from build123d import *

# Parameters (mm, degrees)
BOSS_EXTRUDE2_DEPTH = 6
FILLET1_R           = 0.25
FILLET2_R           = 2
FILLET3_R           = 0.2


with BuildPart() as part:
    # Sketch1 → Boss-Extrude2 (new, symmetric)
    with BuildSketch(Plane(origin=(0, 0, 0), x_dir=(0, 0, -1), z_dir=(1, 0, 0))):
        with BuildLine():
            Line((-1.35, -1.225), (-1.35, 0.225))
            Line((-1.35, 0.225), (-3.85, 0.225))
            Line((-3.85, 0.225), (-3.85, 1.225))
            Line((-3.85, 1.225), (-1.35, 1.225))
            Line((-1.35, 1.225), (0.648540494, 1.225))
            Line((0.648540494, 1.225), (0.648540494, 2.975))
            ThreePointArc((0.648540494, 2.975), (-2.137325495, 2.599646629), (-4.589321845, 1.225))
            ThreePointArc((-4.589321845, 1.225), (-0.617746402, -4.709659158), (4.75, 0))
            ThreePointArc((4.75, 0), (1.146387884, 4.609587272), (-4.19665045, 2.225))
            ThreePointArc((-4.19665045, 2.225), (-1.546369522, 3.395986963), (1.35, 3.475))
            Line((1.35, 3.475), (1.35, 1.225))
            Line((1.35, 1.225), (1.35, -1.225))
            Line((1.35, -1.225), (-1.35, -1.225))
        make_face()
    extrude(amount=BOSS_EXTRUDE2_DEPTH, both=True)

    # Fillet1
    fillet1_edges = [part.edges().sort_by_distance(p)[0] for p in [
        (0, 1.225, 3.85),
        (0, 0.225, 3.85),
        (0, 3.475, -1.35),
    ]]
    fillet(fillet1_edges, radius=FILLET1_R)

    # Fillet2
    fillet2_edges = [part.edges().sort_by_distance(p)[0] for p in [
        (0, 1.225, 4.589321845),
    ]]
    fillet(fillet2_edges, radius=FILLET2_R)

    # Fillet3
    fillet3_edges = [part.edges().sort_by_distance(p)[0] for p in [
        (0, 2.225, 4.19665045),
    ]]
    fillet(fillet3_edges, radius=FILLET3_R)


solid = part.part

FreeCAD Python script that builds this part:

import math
import FreeCAD as App
import Part
import Sketcher


def edges_at(feature, points):
    """Names of the edges that pass closest to the given points."""
    edges = feature.Shape.Edges
    near = lambda p: min(range(len(edges)), key=lambda i: edges[i].distToShape(Part.Vertex(*p))[0])
    return sorted({f"Edge{near(p) + 1}" for p in points})

doc = App.newDocument("Part")
body = doc.addObject("PartDesign::Body", "Body")

sketch1 = body.newObject("Sketcher::SketchObject", "Sketch")
sketch1.AttachmentSupport = (doc.getObject("YZ_Plane"), [""])
sketch1.MapMode = "FlatFace"
sketch1.addGeometry(Part.LineSegment(App.Vector(-1.2, 1.4, 0), App.Vector(0.2, 1.4, 0)), False)
sketch1.addGeometry(Part.LineSegment(App.Vector(0.2, 1.4, 0), App.Vector(0.2, 3.9, 0)), False)
sketch1.addGeometry(Part.LineSegment(App.Vector(0.2, 3.9, 0), App.Vector(1.2, 3.9, 0)), False)
sketch1.addGeometry(Part.LineSegment(App.Vector(1.2, 3.9, 0), App.Vector(1.2, -0.6, 0)), False)
sketch1.addGeometry(Part.LineSegment(App.Vector(1.2, -0.6, 0), App.Vector(3, -0.6, 0)), False)
sketch1.addGeometry(Part.ArcOfCircle(Part.Circle(App.Vector(-4.5, -0.2, 0), App.Vector(0, 0, 1), 7.5), math.radians(-3), math.radians(40)), False)
sketch1.addGeometry(Part.ArcOfCircle(Part.Circle(App.Vector(0, 0, 0), App.Vector(0, 0, 1), 4.8), math.radians(75), math.radians(270)), False)
sketch1.addGeometry(Part.ArcOfCircle(Part.Circle(App.Vector(0, 0, 0), App.Vector(0, 0, 1), 4.8), math.radians(-90), math.radians(62)), False)
sketch1.addGeometry(Part.ArcOfCircle(Part.Circle(App.Vector(-3.9, -0.1, 0), App.Vector(0, 0, 1), 7.5), math.radians(-10), math.radians(35)), False)
sketch1.addGeometry(Part.LineSegment(App.Vector(3.5, -1.4, 0), App.Vector(-1.2, -1.4, 0)), False)
sketch1.addGeometry(Part.LineSegment(App.Vector(-1.2, -1.4, 0), App.Vector(-1.2, 1.4, 0)), False)
sketch1.addConstraint(Sketcher.Constraint("Coincident", 0, 2, 1, 1))
sketch1.addConstraint(Sketcher.Constraint("Coincident", 1, 2, 2, 1))
sketch1.addConstraint(Sketcher.Constraint("Coincident", 2, 2, 3, 1))
sketch1.addConstraint(Sketcher.Constraint("Coincident", 3, 2, 4, 1))
sketch1.addConstraint(Sketcher.Constraint("Coincident", 4, 2, 5, 1))
sketch1.addConstraint(Sketcher.Constraint("Coincident", 5, 2, 6, 1))
sketch1.addConstraint(Sketcher.Constraint("Tangent", 6, 2, 7, 1))
sketch1.addConstraint(Sketcher.Constraint("Coincident", 7, 2, 8, 2))
sketch1.addConstraint(Sketcher.Constraint("Coincident", 8, 1, 9, 1))
sketch1.addConstraint(Sketcher.Constraint("Coincident", 9, 2, 10, 1))
sketch1.addConstraint(Sketcher.Constraint("Coincident", 10, 2, 0, 1))
sketch1.addConstraint(Sketcher.Constraint("Horizontal", 0))
sketch1.addConstraint(Sketcher.Constraint("Vertical", 1))
sketch1.addConstraint(Sketcher.Constraint("Horizontal", 2))
sketch1.addConstraint(Sketcher.Constraint("Vertical", 3))
sketch1.addConstraint(Sketcher.Constraint("Horizontal", 4))
sketch1.addConstraint(Sketcher.Constraint("Horizontal", 9))
sketch1.addConstraint(Sketcher.Constraint("Vertical", 10))
sketch1.addConstraint(Sketcher.Constraint("Coincident", 6, 3, -1, 1))
sketch1.addConstraint(Sketcher.Constraint("Equal", 6, 7))
sketch1.addConstraint(Sketcher.Constraint("Equal", 5, 8))
sketch1.addConstraint(Sketcher.Constraint("PointOnObject", 6, 2, -2))
sketch1.addConstraint(Sketcher.Constraint("Vertical", 3, 2, 5, 2))
sketch1.addConstraint(Sketcher.Constraint("Radius", 5, 7.5))
sketch1.addConstraint(Sketcher.Constraint("DistanceX", 2, 1, 2, 2, 1.0))
sketch1.addConstraint(Sketcher.Constraint("Radius", 6, 4.75))
sketch1.addConstraint(Sketcher.Constraint("DistanceX", 9, 2, 9, 1, 4.7))
sketch1.addConstraint(Sketcher.Constraint("DistanceY", 1, 1, 1, 2, 2.5))
sketch1.addConstraint(Sketcher.Constraint("DistanceY", 10, 1, 10, 2, 2.7))
sketch1.addConstraint(Sketcher.Constraint("DistanceX", 2, 2, 7, 2, 1.0))
sketch1.addConstraint(Sketcher.Constraint("DistanceX", 0, 1, 0, 2, 1.45))
sketch1.addConstraint(Sketcher.Constraint("DistanceX", 4, 1, 4, 2, 1.75))
sketch1.addConstraint(Sketcher.Constraint("DistanceY", -1, 1, 0, 2, 1.35))
sketch1.addConstraint(Sketcher.Constraint("DistanceX", -1, 1, 0, 2, 0.225))
sketch1.addConstraint(Sketcher.Constraint("DistanceY", 3, 2, 3, 1, 4.49854))
pad1 = body.newObject("PartDesign::Pad", "Pad")
pad1.Profile = sketch1
pad1.Length = 12
pad1.Midplane = True
doc.recompute()

fillet = body.newObject("PartDesign::Fillet", "Fillet")
fillet.Base = (pad1, edges_at(pad1, [(0, 1.225, 3.85), (0, 0.225, 3.85), (0, 3.475, -1.35)]))
fillet.Radius = 0.25
doc.recompute()

fillet2 = body.newObject("PartDesign::Fillet", "Fillet001")
fillet2.Base = (fillet, edges_at(fillet, [(0, 1.225, 4.589)]))
fillet2.Radius = 2
doc.recompute()

fillet3 = body.newObject("PartDesign::Fillet", "Fillet002")
fillet3.Base = (fillet2, edges_at(fillet2, [(0, 2.225, 4.197)]))
fillet3.Radius = 0.2

doc.recompute()
